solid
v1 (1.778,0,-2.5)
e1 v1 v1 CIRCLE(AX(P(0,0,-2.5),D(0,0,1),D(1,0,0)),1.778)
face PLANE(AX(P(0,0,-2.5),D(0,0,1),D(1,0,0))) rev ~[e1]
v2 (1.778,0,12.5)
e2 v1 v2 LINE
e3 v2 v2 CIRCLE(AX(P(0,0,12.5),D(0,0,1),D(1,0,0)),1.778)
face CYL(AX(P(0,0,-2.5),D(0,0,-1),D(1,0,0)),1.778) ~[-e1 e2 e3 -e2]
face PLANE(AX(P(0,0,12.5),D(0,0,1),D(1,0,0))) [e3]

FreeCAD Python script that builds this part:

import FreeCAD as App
import Part
import Sketcher
Q = App.Units.Quantity

doc = App.newDocument("Part")
body = doc.addObject("PartDesign::Body", "Body")

# Sketch on XY plane
sketch1 = body.newObject("Sketcher::SketchObject", "Sketch")
sketch1.AttachmentSupport = (doc.getObject("XY_Plane"), [""])
sketch1.MapMode = "FlatFace"
sketch1.AttachmentOffset = App.Placement(App.Vector(0, 0, -2.5), App.Rotation())
sketch1.addGeometry(Part.Circle(App.Vector(0, 0, 0), App.Vector(0, 0, 1), 1.8), False)
sketch1.addConstraint([
    Sketcher.Constraint("Coincident", 0, 3, -1, 1),
    Sketcher.Constraint("Diameter", 0, Q("3.556 mm")),
])
pad1 = body.newObject("PartDesign::Pad", "Pad")
pad1.Profile = sketch1
pad1.Length = 15

doc.recompute()
